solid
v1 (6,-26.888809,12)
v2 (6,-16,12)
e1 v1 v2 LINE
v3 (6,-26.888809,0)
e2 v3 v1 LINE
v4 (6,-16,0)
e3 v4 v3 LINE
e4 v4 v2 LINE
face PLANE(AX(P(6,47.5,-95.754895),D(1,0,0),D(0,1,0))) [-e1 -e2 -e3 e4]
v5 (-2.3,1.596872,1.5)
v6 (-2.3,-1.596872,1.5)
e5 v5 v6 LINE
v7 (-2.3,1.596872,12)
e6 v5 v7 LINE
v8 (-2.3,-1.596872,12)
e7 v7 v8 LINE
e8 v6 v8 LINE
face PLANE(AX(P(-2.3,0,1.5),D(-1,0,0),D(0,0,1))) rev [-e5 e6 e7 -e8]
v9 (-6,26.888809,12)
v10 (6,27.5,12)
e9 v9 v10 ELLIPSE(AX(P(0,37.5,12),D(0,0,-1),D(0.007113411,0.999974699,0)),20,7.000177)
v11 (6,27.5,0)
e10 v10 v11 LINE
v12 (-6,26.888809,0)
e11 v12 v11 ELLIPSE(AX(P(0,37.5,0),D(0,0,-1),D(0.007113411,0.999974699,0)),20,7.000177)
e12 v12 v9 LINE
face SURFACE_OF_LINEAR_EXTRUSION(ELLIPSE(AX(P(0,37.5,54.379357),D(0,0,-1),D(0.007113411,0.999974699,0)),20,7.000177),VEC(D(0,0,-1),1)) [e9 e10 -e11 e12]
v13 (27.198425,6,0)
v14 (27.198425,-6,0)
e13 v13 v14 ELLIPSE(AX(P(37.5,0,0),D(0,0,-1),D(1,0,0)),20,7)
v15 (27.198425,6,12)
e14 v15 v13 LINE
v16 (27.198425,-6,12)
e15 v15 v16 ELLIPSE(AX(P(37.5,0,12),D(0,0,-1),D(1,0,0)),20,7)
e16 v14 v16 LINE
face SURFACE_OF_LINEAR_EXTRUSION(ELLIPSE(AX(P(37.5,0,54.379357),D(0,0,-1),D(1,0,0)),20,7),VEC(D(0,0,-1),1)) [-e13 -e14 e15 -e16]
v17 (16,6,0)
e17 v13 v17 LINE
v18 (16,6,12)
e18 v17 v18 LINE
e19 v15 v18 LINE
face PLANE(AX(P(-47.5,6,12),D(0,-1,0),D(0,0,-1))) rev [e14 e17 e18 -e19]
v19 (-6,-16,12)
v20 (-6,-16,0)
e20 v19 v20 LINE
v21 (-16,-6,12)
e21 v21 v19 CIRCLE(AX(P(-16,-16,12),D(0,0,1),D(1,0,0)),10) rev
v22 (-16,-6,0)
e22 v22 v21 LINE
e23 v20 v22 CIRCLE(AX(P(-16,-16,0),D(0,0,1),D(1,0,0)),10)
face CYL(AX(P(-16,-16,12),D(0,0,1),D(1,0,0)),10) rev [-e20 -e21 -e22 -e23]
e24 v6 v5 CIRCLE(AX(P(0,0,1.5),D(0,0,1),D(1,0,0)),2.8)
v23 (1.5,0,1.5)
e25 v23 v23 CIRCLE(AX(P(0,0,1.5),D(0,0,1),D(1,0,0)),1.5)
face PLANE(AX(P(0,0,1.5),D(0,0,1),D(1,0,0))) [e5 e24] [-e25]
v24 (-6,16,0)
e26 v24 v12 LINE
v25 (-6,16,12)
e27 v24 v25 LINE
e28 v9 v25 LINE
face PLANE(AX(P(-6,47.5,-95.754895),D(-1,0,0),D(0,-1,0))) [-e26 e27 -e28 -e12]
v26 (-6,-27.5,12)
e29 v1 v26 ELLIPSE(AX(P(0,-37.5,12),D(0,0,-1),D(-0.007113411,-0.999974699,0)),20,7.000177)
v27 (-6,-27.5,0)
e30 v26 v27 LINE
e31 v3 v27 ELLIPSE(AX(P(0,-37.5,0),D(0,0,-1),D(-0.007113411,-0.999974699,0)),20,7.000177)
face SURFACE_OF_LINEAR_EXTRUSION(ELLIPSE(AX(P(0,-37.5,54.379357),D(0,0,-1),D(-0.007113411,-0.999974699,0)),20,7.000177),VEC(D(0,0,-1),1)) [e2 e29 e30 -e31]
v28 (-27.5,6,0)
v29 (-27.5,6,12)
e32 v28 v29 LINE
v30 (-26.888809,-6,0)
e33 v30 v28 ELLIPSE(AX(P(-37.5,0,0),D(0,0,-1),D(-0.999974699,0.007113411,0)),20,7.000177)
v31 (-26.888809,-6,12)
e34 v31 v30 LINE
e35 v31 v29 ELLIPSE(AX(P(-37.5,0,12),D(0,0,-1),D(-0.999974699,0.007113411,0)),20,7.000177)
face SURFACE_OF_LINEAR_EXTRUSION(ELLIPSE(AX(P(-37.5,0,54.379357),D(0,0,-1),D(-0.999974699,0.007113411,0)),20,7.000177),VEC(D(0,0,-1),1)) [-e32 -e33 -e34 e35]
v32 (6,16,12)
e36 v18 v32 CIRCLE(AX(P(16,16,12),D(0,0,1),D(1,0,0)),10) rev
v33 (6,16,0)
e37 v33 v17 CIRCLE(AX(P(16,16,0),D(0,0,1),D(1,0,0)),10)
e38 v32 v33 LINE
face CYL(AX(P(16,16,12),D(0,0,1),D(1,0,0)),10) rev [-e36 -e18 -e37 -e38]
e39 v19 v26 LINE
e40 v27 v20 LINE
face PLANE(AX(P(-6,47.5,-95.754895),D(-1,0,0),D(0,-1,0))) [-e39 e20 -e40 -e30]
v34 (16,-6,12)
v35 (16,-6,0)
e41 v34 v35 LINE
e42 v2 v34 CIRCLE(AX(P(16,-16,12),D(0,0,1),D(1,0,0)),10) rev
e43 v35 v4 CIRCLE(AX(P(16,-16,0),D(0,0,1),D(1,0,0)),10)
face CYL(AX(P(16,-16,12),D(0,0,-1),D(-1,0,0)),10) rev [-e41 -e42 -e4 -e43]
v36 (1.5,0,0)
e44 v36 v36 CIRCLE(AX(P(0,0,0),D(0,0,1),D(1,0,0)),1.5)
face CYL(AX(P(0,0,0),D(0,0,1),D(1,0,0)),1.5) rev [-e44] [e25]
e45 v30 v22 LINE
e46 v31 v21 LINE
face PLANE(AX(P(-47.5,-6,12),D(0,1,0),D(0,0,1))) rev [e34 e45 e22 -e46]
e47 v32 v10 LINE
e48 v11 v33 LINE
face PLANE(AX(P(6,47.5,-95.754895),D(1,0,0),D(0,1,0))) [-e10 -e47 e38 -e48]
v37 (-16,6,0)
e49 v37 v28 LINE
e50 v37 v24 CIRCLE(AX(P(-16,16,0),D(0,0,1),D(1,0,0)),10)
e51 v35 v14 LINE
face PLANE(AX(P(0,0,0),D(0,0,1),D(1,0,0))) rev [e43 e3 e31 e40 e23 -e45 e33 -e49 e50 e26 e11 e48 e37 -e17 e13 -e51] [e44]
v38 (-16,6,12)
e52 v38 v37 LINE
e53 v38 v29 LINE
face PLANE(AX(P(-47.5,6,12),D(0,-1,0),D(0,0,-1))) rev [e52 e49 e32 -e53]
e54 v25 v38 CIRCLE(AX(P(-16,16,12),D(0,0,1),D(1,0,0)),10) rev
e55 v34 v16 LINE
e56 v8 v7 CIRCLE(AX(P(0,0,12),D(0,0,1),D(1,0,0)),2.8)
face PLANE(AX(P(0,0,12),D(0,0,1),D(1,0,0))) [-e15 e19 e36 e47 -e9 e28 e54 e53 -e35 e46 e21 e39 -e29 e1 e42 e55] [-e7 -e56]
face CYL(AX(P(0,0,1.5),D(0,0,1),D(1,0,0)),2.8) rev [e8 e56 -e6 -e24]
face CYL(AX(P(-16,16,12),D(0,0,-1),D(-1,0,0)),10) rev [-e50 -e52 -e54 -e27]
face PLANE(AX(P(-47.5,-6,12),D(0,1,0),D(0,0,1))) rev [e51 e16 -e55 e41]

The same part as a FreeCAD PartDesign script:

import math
import FreeCAD as App
import Part
import Sketcher

V = App.Vector


def edges_at(feature, points):
    """Names of the edges that pass closest to the given points."""
    edges = feature.Shape.Edges
    near = lambda p: min(range(len(edges)), key=lambda i: edges[i].distToShape(Part.Vertex(*p))[0])
    return sorted({f"Edge{near(p) + 1}" for p in points})


def add_polygon(sketch, points):
    """Adds a closed chain of lines whose ends are joined by coincident constraints."""
    first, n = sketch.GeometryCount, len(points)
    for a, b in zip(points, points[1:] + points[:1]):
        sketch.addGeometry(Part.LineSegment(App.Vector(*a, 0), App.Vector(*b, 0)), False)
    for i in range(n):
        sketch.addConstraint(Sketcher.Constraint("Coincident", first + i, 2, first + (i + 1) % n, 1))

doc = App.newDocument("Part")
body = doc.addObject("PartDesign::Body", "Body")

# Sketch on XY plane
sketch1 = body.newObject("Sketcher::SketchObject", "Sketch")
sketch1.AttachmentSupport = (doc.getObject("XY_Plane"), [""])
sketch1.MapMode = "FlatFace"
add_polygon(sketch1, [(-47.5, 6), (-47.5, -6), (47.5, -6), (47.5, 6)])  # lines 0-3
sketch1.addConstraint(Sketcher.Constraint("Vertical", 0))
sketch1.addConstraint(Sketcher.Constraint("Horizontal", 1))
sketch1.addConstraint(Sketcher.Constraint("Vertical", 2))
sketch1.addConstraint(Sketcher.Constraint("Horizontal", 3))
sketch1.addConstraint(Sketcher.Constraint("Symmetric", 0, 2, 2, 2, -1, 1))
sketch1.addConstraint(Sketcher.Constraint("DistanceX", 1, 1, 1, 2, 95.0))
sketch1.addConstraint(Sketcher.Constraint("DistanceY", 0, 2, 0, 1, 12.0))
pad1 = body.newObject("PartDesign::Pad", "Pad")
pad1.Profile = sketch1
pad1.Length = 12

# Sketch on XY plane
sketch2 = body.newObject("Sketcher::SketchObject", "Sketch001")
sketch2.AttachmentSupport = (doc.getObject("XY_Plane"), [""])
sketch2.MapMode = "FlatFace"
sketch2.AttachmentOffset = App.Placement(V(0, 0, 12), App.Rotation())
add_polygon(sketch2, [(-6, 47.5), (-6, -47.5), (6, -47.5), (6, 47.5)])  # lines 0-3
sketch2.addConstraint(Sketcher.Constraint("Vertical", 0))
sketch2.addConstraint(Sketcher.Constraint("Horizontal", 1))
sketch2.addConstraint(Sketcher.Constraint("Vertical", 2))
sketch2.addConstraint(Sketcher.Constraint("Horizontal", 3))
sketch2.addConstraint(Sketcher.Constraint("Symmetric", 0, 2, 2, 2, -1, 1))
sketch2.addConstraint(Sketcher.Constraint("DistanceX", 1, 1, 1, 2, 12.0))
sketch2.addConstraint(Sketcher.Constraint("DistanceY", 0, 2, 0, 1, 95.0))
pad2 = body.newObject("PartDesign::Pad", "Pad001")
pad2.Profile = sketch2
pad2.Length = 12
pad2.Reversed = True

# Sketch on XY plane
sketch3 = body.newObject("Sketcher::SketchObject", "Sketch002")
sketch3.AttachmentSupport = (doc.getObject("XY_Plane"), [""])
sketch3.MapMode = "FlatFace"
sketch3.addGeometry(Part.Ellipse(V(17.5, 0, 0), V(37.5, -7, 0), V(37.5, 0, 0)), False)
sketch3.addGeometry(Part.Ellipse(V(0.142268, 57.499494, 0), V(-7, 37.549795, 0), V(0, 37.5, 0)), False)
sketch3.addGeometry(Part.Ellipse(V(-57.499494, 0.142268, 0), V(-37.549795, -7, 0), V(-37.5, 0, 0)), False)
sketch3.addGeometry(Part.Ellipse(V(-0.142268, -57.499494, 0), V(7, -37.549795, 0), V(0, -37.5, 0)), False)
sketch3.addConstraint(Sketcher.Constraint("Block", 0))
sketch3.addConstraint(Sketcher.Constraint("Block", 1))
sketch3.addConstraint(Sketcher.Constraint("Block", 2))
sketch3.addConstraint(Sketcher.Constraint("Block", 3))
pad3 = body.newObject("PartDesign::Pad", "Pad002")
pad3.Profile = sketch3
pad3.Length = 12

# Sketch on XY plane
sketch4 = body.newObject("Sketcher::SketchObject", "Sketch003")
sketch4.AttachmentSupport = (doc.getObject("XY_Plane"), [""])
sketch4.MapMode = "FlatFace"
sketch4.AttachmentOffset = App.Placement(V(0, 0, 12), App.Rotation())
sketch4.addGeometry(Part.ArcOfCircle(Part.Circle(V(0, 0, 0), V(0, 0, 1), 2.8), math.radians(0), math.radians(145.228056)), False)
sketch4.addGeometry(Part.LineSegment(V(-2.3, 1.596872, 0), V(-2.3, -1.596872, 0)), False)
sketch4.addGeometry(Part.ArcOfCircle(Part.Circle(V(0, 0, 0), V(0, 0, 1), 2.8), math.radians(-145.228056), math.radians(0)), False)
sketch4.addConstraint(Sketcher.Constraint("Coincident", 0, 2, 1, 1))
sketch4.addConstraint(Sketcher.Constraint("Coincident", 1, 2, 2, 1))
sketch4.addConstraint(Sketcher.Constraint("Tangent", 2, 2, 0, 1))
sketch4.addConstraint(Sketcher.Constraint("Vertical", 1))
sketch4.addConstraint(Sketcher.Constraint("Coincident", 0, 3, -1, 1))
sketch4.addConstraint(Sketcher.Constraint("Equal", 0, 2))
sketch4.addConstraint(Sketcher.Constraint("PointOnObject", 2, 2, -1))
sketch4.addConstraint(Sketcher.Constraint("Radius", 0, 2.8))
sketch4.addConstraint(Sketcher.Constraint("DistanceX", 0, 2, -1, 1, 2.3))
pocket1 = body.newObject("PartDesign::Pocket", "Pocket")
pocket1.Profile = sketch4
pocket1.Length = 10.5
doc.recompute()

fillet = body.newObject("PartDesign::Fillet", "Fillet")
fillet.Base = (pocket1, edges_at(pocket1, [
    (6, 6, 6),
    (6, -6, 6),
    (-6, 6, 6),
    (-6, -6, 6),
]))
fillet.Radius = 10

# Sketch on XY plane
sketch5 = body.newObject("Sketcher::SketchObject", "Sketch004")
sketch5.AttachmentSupport = (doc.getObject("XY_Plane"), [""])
sketch5.MapMode = "FlatFace"
sketch5.AttachmentOffset = App.Placement(V(0, 0, 1.5), App.Rotation())
sketch5.addGeometry(Part.Circle(V(0, 0, 0), V(0, 0, 1), 1.5), False)
sketch5.addConstraint(Sketcher.Constraint("Coincident", 0, 3, -1, 1))
sketch5.addConstraint(Sketcher.Constraint("Diameter", 0, 3.0))
pocket2 = body.newObject("PartDesign::Pocket", "Pocket001")
pocket2.Profile = sketch5
pocket2.Type = "ThroughAll"

doc.recompute()
